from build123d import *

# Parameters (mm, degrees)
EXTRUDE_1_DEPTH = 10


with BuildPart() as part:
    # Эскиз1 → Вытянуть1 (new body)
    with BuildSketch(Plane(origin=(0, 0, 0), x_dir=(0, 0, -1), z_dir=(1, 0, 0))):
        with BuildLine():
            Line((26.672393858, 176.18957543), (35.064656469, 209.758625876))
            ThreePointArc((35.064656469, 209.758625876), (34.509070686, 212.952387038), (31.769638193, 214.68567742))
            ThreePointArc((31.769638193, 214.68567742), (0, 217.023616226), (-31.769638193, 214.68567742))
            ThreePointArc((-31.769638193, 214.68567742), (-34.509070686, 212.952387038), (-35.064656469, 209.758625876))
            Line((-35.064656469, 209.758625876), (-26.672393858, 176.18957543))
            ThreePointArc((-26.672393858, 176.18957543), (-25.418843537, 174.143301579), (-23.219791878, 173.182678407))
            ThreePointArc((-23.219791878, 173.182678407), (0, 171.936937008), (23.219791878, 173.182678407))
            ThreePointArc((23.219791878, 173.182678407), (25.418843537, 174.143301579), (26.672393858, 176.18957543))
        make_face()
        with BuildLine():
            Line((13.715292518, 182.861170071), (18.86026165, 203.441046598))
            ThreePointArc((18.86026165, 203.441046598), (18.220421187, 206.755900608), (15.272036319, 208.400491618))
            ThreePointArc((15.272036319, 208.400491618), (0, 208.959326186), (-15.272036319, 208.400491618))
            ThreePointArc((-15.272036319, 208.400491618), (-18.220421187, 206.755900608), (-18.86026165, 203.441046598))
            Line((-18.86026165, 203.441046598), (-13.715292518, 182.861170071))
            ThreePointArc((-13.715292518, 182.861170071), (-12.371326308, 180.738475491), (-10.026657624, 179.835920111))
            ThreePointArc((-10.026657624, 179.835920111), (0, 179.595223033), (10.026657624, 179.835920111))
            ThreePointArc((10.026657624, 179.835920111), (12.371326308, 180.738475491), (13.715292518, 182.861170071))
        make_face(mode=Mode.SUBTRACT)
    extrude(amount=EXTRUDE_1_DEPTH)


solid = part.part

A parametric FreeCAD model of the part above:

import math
import FreeCAD as App
import Part
import Sketcher
from FreeCAD import Vector
Q = App.Units.Quantity

doc = App.newDocument("Part")
params = doc.addObject("Spreadsheet::Sheet", "Params")
for row, (alias, value) in enumerate([
    ("sketch1_radius", "4 mm"),
    ("pad1_length", "10 mm"),
], start=1):
    params.set(f"A{row}", alias)
    params.set(f"B{row}", "=" + value)
    params.setAlias(f"B{row}", alias)

body = doc.addObject("PartDesign::Body", "Body")

# Sketch on YZ plane
sketch1 = doc.addObject("Sketcher::SketchObject", "Sketch")
body.addObject(sketch1)
sketch1.AttachmentSupport = (doc.YZ_Plane, [""])
sketch1.MapMode = "FlatFace"
sketch1.addGeometry(Part.LineSegment(Vector(176.189575, -26.672394, 0), Vector(209.758626, -35.064656, 0)), False)
sketch1.addGeometry(Part.ArcOfCircle(Part.Circle(Vector(210.728768, -31.184086, 0), Vector(0, 0, 1), 4), math.radians(-104.036243), math.radians(-8.417659)), False)
sketch1.addGeometry(Part.ArcOfCircle(Part.Circle(Vector(0, 0, 0), Vector(0, 0, 1), 217.023616), math.radians(-8.417659), math.radians(8.417659)), False)
sketch1.addGeometry(Part.ArcOfCircle(Part.Circle(Vector(210.728768, 31.184086, 0), Vector(0, 0, 1), 4), math.radians(8.417659), math.radians(104.036243)), False)
sketch1.addGeometry(Part.LineSegment(Vector(209.758626, 35.064656, 0), Vector(176.189575, 26.672394, 0)), False)
sketch1.addGeometry(Part.ArcOfCircle(Part.Circle(Vector(177.159718, 22.791824, 0), Vector(0, 0, 1), 4), math.radians(104.036243), math.radians(173.858053)), False)
sketch1.addGeometry(Part.ArcOfCircle(Part.Circle(Vector(388.960553, 0, 0), Vector(0, 0, 1), 217.023616), math.radians(173.858053), math.radians(186.141947)), False)
sketch1.addGeometry(Part.ArcOfCircle(Part.Circle(Vector(177.159718, -22.791824, 0), Vector(0, 0, 1), 4), math.radians(-173.858053), math.radians(-104.036243)), False)
sketch1.addGeometry(Part.LineSegment(Vector(203.441047, -18.860262, 0), Vector(182.86117, -13.715293, 0)), False)
sketch1.addGeometry(Part.ArcOfCircle(Part.Circle(Vector(183.831313, -9.834723, 0), Vector(0, 0, 1), 4), math.radians(-177.249676), math.radians(-104.036243)), False)
sketch1.addGeometry(Part.ArcOfCircle(Part.Circle(Vector(388.554549, 0, 0), Vector(0, 0, 1), 208.959326), math.radians(177.249676), math.radians(182.750324)), False)
sketch1.addGeometry(Part.ArcOfCircle(Part.Circle(Vector(183.831313, 9.834723, 0), Vector(0, 0, 1), 4), math.radians(104.036243), math.radians(177.249676)), False)
sketch1.addGeometry(Part.LineSegment(Vector(182.86117, 13.715293, 0), Vector(203.441047, 18.860262, 0)), False)
sketch1.addGeometry(Part.ArcOfCircle(Part.Circle(Vector(204.411189, 14.979692, 0), Vector(0, 0, 1), 4), math.radians(4.191266), math.radians(104.036243)), False)
sketch1.addGeometry(Part.ArcOfCircle(Part.Circle(Vector(0, 0, 0), Vector(0, 0, 1), 208.959326), math.radians(-4.191266), math.radians(4.191266)), False)
sketch1.addGeometry(Part.ArcOfCircle(Part.Circle(Vector(204.411189, -14.979692, 0), Vector(0, 0, 1), 4), math.radians(-104.036243), math.radians(-4.191266)), False)
sketch1.addConstraint(Sketcher.Constraint("Tangent", 0, 2, 1, 1))
sketch1.addConstraint(Sketcher.Constraint("Tangent", 1, 2, 2, 1))
sketch1.addConstraint(Sketcher.Constraint("Tangent", 2, 2, 3, 1))
sketch1.addConstraint(Sketcher.Constraint("Tangent", 3, 2, 4, 1))
sketch1.addConstraint(Sketcher.Constraint("Tangent", 4, 2, 5, 1))
sketch1.addConstraint(Sketcher.Constraint("Tangent", 5, 2, 6, 1))
sketch1.addConstraint(Sketcher.Constraint("Tangent", 6, 2, 7, 1))
sketch1.addConstraint(Sketcher.Constraint("Tangent", 7, 2, 0, 1))
sketch1.addConstraint(Sketcher.Constraint("Tangent", 8, 2, 9, 2))
sketch1.addConstraint(Sketcher.Constraint("Tangent", 9, 1, 10, 2))
sketch1.addConstraint(Sketcher.Constraint("Tangent", 10, 1, 11, 2))
sketch1.addConstraint(Sketcher.Constraint("Tangent", 11, 1, 12, 1))
sketch1.addConstraint(Sketcher.Constraint("Tangent", 12, 2, 13, 2))
sketch1.addConstraint(Sketcher.Constraint("Tangent", 13, 1, 14, 2))
sketch1.addConstraint(Sketcher.Constraint("Tangent", 14, 1, 15, 2))
sketch1.addConstraint(Sketcher.Constraint("Tangent", 15, 1, 8, 1))
sketch1.addConstraint(Sketcher.Constraint("Coincident", 2, 3, -1, 1))
sketch1.addConstraint(Sketcher.Constraint("Coincident", 14, 3, -1, 1))
sketch1.addConstraint(Sketcher.Constraint("Equal", 1, 3))
sketch1.addConstraint(Sketcher.Constraint("Equal", 3, 5))
sketch1.addConstraint(Sketcher.Constraint("Equal", 2, 6))
sketch1.addConstraint(Sketcher.Constraint("Equal", 5, 7))
sketch1.addConstraint(Sketcher.Constraint("Equal", 7, 9))
sketch1.addConstraint(Sketcher.Constraint("Equal", 9, 11))
sketch1.addConstraint(Sketcher.Constraint("Equal", 11, 13))
sketch1.addConstraint(Sketcher.Constraint("Equal", 10, 14))
sketch1.addConstraint(Sketcher.Constraint("Equal", 13, 15))
sketch1.addConstraint(Sketcher.Constraint("Symmetric", 5, 3, 7, 3, -1))
sketch1.addConstraint(Sketcher.Constraint("Symmetric", 9, 3, 11, 3, -1))
sketch1.addConstraint(Sketcher.Constraint("Parallel", 0, 8))
sketch1.addConstraint(Sketcher.Constraint("Parallel", 4, 12))
sketch1.addConstraint(Sketcher.Constraint("Vertical", 1, 3, 3, 3))
sketch1.addConstraint(Sketcher.Constraint("Radius", 1, Q("4 mm")))
sketch1.addConstraint(Sketcher.Constraint("Radius", 2, Q("217.023616 mm")))
sketch1.addConstraint(Sketcher.Constraint("Radius", 10, Q("208.959326 mm")))
sketch1.addConstraint(Sketcher.Constraint("DistanceY", 7, 3, 9, 3, Q("12.957101 mm")))
sketch1.addConstraint(Sketcher.Constraint("DistanceY", 5, 2, 4, 2, Q("3.452602 mm")))
sketch1.addConstraint(Sketcher.Constraint("DistanceY", 13, 3, 5, 2, Q("8.2401 mm")))
sketch1.addConstraint(Sketcher.Constraint("Distance", 8, Q("21.213251 mm")))
sketch1.addConstraint(Sketcher.Constraint("DistanceX", -1, 1, 1, 3, Q("210.728768 mm")))
sketch1.setExpression("Constraints[32]", "Params.sketch1_radius")
pad1 = doc.addObject("PartDesign::Pad", "Pad")
body.addObject(pad1)
pad1.Profile = sketch1
pad1.setExpression("Length", "Params.pad1_length")

doc.recompute()
